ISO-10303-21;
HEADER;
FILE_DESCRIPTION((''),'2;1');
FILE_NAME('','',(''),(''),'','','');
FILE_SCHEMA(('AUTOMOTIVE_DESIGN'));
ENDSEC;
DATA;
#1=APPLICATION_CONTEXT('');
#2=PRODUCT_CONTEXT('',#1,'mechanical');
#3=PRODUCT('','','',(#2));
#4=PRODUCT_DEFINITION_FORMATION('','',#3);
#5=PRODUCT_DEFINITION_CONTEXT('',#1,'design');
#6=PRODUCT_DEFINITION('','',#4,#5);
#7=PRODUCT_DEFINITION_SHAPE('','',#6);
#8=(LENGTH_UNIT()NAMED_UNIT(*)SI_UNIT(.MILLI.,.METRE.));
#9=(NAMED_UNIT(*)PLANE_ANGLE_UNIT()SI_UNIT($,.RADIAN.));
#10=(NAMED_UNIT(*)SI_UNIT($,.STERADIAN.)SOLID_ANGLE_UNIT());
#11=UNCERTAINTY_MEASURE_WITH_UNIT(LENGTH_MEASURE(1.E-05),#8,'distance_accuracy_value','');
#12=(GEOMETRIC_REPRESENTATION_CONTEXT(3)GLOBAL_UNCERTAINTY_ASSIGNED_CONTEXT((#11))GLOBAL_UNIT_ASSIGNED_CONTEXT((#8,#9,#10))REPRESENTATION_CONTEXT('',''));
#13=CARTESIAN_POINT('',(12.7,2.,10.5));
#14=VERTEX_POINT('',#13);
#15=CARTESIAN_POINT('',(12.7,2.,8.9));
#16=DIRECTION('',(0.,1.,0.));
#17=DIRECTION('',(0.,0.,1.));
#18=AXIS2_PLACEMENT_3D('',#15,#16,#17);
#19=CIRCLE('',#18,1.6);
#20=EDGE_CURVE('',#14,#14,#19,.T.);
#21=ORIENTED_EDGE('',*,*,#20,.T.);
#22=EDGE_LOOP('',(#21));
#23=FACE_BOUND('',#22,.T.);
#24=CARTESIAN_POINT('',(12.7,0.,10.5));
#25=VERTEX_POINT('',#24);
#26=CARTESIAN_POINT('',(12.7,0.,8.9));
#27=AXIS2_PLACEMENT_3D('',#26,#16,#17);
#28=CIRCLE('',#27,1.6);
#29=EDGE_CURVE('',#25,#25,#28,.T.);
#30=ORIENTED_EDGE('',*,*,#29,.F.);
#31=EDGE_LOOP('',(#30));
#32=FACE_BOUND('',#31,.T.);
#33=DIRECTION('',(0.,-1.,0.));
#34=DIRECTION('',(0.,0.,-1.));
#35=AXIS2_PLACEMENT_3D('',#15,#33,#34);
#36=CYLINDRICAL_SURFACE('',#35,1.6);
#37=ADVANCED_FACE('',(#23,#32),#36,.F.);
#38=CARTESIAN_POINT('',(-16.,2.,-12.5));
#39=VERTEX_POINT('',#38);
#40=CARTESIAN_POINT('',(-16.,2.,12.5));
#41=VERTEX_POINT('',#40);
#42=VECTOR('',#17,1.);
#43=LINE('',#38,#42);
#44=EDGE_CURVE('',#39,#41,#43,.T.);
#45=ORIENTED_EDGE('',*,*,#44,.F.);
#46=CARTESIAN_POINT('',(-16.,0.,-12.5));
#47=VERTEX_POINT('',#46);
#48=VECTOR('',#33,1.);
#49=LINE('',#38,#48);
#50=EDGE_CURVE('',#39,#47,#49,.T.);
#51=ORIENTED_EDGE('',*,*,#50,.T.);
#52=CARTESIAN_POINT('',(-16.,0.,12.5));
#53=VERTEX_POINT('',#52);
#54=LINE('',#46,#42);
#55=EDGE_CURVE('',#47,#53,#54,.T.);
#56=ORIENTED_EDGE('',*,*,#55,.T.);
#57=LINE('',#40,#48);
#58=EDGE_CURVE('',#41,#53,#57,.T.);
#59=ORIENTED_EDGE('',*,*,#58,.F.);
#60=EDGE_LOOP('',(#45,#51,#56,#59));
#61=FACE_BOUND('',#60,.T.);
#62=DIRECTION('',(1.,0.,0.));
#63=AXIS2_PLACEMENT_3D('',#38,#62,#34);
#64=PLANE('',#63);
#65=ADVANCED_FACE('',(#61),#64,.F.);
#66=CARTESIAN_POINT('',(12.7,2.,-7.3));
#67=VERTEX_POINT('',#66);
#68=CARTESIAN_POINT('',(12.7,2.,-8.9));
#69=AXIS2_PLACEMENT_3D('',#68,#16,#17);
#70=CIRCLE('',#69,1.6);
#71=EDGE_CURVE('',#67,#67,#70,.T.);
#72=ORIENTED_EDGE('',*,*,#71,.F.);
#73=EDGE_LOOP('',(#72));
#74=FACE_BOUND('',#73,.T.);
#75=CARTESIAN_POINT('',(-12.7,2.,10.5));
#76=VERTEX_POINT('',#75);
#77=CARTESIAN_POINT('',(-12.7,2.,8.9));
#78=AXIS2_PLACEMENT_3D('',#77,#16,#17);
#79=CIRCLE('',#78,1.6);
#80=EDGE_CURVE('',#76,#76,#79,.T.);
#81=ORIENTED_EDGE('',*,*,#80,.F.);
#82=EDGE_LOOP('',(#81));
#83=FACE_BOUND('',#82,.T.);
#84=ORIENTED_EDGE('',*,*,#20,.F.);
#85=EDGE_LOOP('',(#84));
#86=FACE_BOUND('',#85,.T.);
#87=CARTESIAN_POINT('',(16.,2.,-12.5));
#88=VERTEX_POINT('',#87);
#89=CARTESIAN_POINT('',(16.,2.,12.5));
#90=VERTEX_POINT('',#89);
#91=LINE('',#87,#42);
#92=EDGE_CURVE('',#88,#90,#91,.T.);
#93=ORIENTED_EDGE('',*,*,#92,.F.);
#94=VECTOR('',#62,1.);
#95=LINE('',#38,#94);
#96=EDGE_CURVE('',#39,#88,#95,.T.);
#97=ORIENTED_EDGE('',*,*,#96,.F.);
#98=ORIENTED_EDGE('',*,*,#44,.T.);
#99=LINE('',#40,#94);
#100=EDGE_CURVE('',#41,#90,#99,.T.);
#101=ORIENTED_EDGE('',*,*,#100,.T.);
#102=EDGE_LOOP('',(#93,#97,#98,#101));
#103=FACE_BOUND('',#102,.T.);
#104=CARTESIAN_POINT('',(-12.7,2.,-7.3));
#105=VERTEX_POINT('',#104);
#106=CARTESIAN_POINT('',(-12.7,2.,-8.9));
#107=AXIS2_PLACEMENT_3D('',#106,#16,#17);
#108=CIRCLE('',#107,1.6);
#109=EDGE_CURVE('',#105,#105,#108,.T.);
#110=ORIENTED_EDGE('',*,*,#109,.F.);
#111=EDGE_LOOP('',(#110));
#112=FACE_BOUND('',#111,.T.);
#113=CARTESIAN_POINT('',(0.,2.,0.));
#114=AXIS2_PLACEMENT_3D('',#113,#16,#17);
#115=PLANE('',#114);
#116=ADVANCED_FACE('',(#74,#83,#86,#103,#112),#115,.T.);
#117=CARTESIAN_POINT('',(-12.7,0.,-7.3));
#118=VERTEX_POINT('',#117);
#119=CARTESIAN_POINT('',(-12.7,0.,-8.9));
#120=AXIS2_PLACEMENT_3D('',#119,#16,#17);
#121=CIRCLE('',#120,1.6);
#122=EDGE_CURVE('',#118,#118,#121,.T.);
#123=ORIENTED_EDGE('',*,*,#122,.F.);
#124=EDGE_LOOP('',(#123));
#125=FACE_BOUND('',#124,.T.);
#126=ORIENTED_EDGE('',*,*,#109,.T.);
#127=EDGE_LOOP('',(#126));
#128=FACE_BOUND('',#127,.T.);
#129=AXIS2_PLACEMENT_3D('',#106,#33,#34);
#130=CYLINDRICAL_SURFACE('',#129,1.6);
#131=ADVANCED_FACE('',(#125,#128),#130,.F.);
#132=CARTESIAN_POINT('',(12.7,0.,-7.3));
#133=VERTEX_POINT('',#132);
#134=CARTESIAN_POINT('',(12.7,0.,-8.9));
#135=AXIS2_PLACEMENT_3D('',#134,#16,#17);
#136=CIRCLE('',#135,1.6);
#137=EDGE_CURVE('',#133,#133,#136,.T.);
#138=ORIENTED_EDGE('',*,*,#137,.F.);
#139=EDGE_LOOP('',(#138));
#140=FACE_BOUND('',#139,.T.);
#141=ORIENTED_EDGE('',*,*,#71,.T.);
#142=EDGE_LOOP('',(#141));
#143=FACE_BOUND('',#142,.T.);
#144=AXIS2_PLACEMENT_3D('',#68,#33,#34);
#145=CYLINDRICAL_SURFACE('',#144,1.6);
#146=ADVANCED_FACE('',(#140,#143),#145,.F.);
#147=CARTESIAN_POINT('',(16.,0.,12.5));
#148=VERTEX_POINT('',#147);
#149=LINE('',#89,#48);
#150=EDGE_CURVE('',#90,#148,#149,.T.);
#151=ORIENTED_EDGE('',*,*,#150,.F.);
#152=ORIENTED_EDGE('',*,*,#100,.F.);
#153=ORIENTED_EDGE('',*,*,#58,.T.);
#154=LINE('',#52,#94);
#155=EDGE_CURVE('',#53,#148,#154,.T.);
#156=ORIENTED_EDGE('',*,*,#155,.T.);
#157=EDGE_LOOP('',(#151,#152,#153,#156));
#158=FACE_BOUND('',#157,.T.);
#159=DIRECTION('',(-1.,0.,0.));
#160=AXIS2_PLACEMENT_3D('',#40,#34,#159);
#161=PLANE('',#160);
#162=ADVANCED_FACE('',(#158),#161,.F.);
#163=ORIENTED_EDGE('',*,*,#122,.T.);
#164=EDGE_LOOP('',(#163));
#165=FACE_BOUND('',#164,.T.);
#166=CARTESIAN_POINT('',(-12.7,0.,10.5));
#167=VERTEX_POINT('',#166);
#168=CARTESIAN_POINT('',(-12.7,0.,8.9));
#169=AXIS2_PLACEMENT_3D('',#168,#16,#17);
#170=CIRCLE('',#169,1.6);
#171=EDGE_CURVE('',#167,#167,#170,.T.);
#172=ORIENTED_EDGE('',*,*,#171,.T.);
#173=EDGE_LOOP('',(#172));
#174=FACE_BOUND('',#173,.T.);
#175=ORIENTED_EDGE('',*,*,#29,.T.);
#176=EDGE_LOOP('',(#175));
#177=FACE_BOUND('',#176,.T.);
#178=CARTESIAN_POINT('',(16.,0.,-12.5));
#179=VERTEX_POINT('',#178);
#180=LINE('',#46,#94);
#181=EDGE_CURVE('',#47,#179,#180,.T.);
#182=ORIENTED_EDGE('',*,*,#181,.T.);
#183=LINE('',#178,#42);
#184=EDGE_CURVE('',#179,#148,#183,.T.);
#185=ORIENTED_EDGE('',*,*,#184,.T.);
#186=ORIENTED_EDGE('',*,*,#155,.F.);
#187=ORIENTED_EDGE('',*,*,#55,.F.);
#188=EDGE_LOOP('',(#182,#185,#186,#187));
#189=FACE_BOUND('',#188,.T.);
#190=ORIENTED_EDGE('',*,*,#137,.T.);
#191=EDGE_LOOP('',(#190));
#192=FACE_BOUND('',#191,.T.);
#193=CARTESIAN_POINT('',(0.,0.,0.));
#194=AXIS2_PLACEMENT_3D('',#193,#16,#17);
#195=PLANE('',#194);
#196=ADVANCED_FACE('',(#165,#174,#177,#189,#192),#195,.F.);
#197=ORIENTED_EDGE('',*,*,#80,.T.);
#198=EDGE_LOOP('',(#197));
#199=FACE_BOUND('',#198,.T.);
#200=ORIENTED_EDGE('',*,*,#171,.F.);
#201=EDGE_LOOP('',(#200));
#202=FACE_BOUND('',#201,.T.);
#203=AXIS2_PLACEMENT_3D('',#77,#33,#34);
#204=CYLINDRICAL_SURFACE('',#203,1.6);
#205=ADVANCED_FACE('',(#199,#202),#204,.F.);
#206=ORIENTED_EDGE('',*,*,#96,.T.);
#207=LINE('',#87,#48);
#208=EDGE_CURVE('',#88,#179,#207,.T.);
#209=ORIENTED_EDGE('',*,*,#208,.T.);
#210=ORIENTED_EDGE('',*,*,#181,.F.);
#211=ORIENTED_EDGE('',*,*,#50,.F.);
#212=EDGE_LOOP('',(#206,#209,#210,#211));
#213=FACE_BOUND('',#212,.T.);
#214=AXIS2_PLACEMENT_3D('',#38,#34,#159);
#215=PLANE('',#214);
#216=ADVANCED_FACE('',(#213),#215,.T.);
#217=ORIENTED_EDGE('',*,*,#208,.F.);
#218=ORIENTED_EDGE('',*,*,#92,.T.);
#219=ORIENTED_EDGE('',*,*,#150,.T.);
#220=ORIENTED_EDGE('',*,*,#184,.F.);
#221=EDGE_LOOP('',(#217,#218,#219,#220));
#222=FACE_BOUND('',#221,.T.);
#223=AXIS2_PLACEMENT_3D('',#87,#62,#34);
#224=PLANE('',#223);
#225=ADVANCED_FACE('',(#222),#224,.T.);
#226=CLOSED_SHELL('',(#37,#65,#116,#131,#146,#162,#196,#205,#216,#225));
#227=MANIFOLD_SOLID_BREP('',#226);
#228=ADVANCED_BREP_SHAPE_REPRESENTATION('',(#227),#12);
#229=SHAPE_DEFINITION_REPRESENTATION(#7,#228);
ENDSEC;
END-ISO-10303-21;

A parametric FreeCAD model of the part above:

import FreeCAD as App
import Part
import Sketcher

V = App.Vector

doc = App.newDocument("Part")
body = doc.addObject("PartDesign::Body", "Body")

# Sketch on XZ plane
sketch1 = body.newObject("Sketcher::SketchObject", "Sketch")
sketch1.AttachmentSupport = (doc.getObject("XZ_Plane"), [""])
sketch1.MapMode = "FlatFace"
sketch1.addGeometry([
    Part.LineSegment(V(-16, -12, 0), V(-16, 12, 0)),
    Part.LineSegment(V(-16, 12, 0), V(16, 12, 0)),
    Part.LineSegment(V(16, 12, 0), V(16, -12, 0)),
    Part.LineSegment(V(16, -12, 0), V(-16, -12, 0)),
], False)
sketch1.addConstraint([
    Sketcher.Constraint("Coincident", 0, 2, 1, 1),
    Sketcher.Constraint("Coincident", 1, 2, 2, 1),
    Sketcher.Constraint("Coincident", 2, 2, 3, 1),
    Sketcher.Constraint("Coincident", 3, 2, 0, 1),
    Sketcher.Constraint("Vertical", 0),
    Sketcher.Constraint("Horizontal", 1),
    Sketcher.Constraint("Vertical", 2),
    Sketcher.Constraint("Horizontal", 3),
    Sketcher.Constraint("Symmetric", 0, 2, 2, 2, -1, 1),
    Sketcher.Constraint("DistanceX", 1, 1, 1, 2, 32.0),
    Sketcher.Constraint("DistanceY", 0, 1, 0, 2, 25.0),
])
pad1 = body.newObject("PartDesign::Pad", "Pad")
pad1.Profile = sketch1
pad1.Length = 2
pad1.Reversed = True

# Sketch on XZ plane
sketch2 = body.newObject("Sketcher::SketchObject", "Sketch001")
sketch2.AttachmentSupport = (doc.getObject("XZ_Plane"), [""])
sketch2.MapMode = "FlatFace"
sketch2.addGeometry([
    Part.Circle(V(-12.7, -8.9, 0), V(0, 0, 1), 1.6),
    Part.Circle(V(-12.7, 8.9, 0), V(0, 0, 1), 1.6),
    Part.Circle(V(12.7, -8.9, 0), V(0, 0, 1), 1.6),
    Part.Circle(V(12.7, 8.9, 0), V(0, 0, 1), 1.6),
], False)
sketch2.addConstraint([
    Sketcher.Constraint("Equal", 0, 1),
    Sketcher.Constraint("Equal", 1, 2),
    Sketcher.Constraint("Equal", 2, 3),
    Sketcher.Constraint("Symmetric", 1, 3, 2, 3, -1, 1),
    Sketcher.Constraint("Symmetric", 0, 3, 3, 3, -1, 1),
    Sketcher.Constraint("Symmetric", 0, 3, 2, 3, -2),
    Sketcher.Constraint("Diameter", 0, 3.2),
    Sketcher.Constraint("DistanceX", 0, 3, -1, 1, 12.7),
    Sketcher.Constraint("DistanceY", 0, 3, -1, 1, 8.9),
])
pocket1 = body.newObject("PartDesign::Pocket", "Pocket")
pocket1.Profile = sketch2
pocket1.Type = "ThroughAll"

doc.recompute()
